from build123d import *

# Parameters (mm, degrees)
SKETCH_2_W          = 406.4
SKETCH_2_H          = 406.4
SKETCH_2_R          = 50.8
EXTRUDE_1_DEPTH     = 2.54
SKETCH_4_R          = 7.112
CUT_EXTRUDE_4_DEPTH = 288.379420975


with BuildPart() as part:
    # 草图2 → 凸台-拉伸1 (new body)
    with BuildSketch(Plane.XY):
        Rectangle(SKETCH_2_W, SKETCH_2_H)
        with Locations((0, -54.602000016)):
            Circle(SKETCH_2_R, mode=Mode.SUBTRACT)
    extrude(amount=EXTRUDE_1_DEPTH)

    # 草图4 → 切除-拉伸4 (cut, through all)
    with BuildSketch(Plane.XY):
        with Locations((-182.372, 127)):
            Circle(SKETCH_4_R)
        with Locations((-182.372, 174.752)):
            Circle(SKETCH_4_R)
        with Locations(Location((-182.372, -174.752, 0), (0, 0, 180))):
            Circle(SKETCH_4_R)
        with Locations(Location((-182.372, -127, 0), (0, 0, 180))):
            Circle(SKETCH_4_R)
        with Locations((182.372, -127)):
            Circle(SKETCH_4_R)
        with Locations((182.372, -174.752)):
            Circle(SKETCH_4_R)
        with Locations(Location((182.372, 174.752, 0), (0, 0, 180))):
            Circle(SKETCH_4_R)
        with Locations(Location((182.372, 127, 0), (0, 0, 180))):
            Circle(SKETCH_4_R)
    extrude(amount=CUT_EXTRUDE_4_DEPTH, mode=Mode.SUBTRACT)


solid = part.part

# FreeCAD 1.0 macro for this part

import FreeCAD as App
import Part
import Sketcher
Q = App.Units.Quantity

doc = App.newDocument("Part")
body = doc.addObject("PartDesign::Body", "Body")

# Sketch on XY plane
sketch1 = doc.addObject("Sketcher::SketchObject", "Sketch")
body.addObject(sketch1)
sketch1.AttachmentSupport = (doc.XY_Plane, [""])
sketch1.MapMode = "FlatFace"
sketch1.addGeometry([
    Part.LineSegment(App.Vector(-203, 203, 0), App.Vector(-203, -203, 0)),  # 0
    Part.LineSegment(App.Vector(-203, -203, 0), App.Vector(203, -203, 0)),  # 1
    Part.LineSegment(App.Vector(203, -203, 0), App.Vector(203, 203, 0)),  # 2
    Part.LineSegment(App.Vector(203, 203, 0), App.Vector(-203, 203, 0)),  # 3
    Part.Circle(App.Vector(0, -55, 0), App.Vector(0, 0, 1), 51),  # 4
], False)
sketch1.addConstraint([
    Sketcher.Constraint("Coincident", 0, 2, 1, 1),
    Sketcher.Constraint("Coincident", 1, 2, 2, 1),
    Sketcher.Constraint("Coincident", 2, 2, 3, 1),
    Sketcher.Constraint("Coincident", 3, 2, 0, 1),
    Sketcher.Constraint("Vertical", 0),
    Sketcher.Constraint("Horizontal", 1),
    Sketcher.Constraint("Vertical", 2),
    Sketcher.Constraint("Horizontal", 3),
    Sketcher.Constraint("Symmetric", 0, 2, 2, 2, -1, 1),
    Sketcher.Constraint("PointOnObject", 4, 3, -2),
    Sketcher.Constraint("Equal", 3, 0),
    Sketcher.Constraint("Diameter", 4, Q("4 in")),
    Sketcher.Constraint("DistanceX", 1, 1, 1, 2, Q("16 in")),
    Sketcher.Constraint("DistanceY", 4, 3, -1, 1, 54.602),
])
pad1 = doc.addObject("PartDesign::Pad", "Pad")
body.addObject(pad1)
pad1.Profile = sketch1
pad1.Length = Q("0.1 in")

# Sketch on XY plane
sketch2 = doc.addObject("Sketcher::SketchObject", "Sketch001")
body.addObject(sketch2)
sketch2.AttachmentSupport = (doc.XY_Plane, [""])
sketch2.MapMode = "FlatFace"
sketch2.addGeometry([
    Part.Circle(App.Vector(-182, 127, 0), App.Vector(0, 0, 1), 7),  # 0
    Part.Circle(App.Vector(-182, 175, 0), App.Vector(0, 0, 1), 7),  # 1
    Part.Circle(App.Vector(-182, -175, 0), App.Vector(0, 0, 1), 7),  # 2
    Part.Circle(App.Vector(-182, -127, 0), App.Vector(0, 0, 1), 7),  # 3
    Part.Circle(App.Vector(182, -127, 0), App.Vector(0, 0, 1), 7),  # 4
    Part.Circle(App.Vector(182, -175, 0), App.Vector(0, 0, 1), 7),  # 5
    Part.Circle(App.Vector(182, 175, 0), App.Vector(0, 0, 1), 7),  # 6
    Part.Circle(App.Vector(182, 127, 0), App.Vector(0, 0, 1), 7),  # 7
], False)
sketch2.addConstraint([
    Sketcher.Constraint("Equal", 0, 1),
    Sketcher.Constraint("Equal", 1, 2),
    Sketcher.Constraint("Equal", 2, 3),
    Sketcher.Constraint("Equal", 3, 4),
    Sketcher.Constraint("Equal", 4, 5),
    Sketcher.Constraint("Equal", 5, 6),
    Sketcher.Constraint("Equal", 6, 7),
    Sketcher.Constraint("Symmetric", 0, 3, 4, 3, -1, 1),
    Sketcher.Constraint("Symmetric", 1, 3, 5, 3, -1, 1),
    Sketcher.Constraint("Symmetric", 2, 3, 6, 3, -1, 1),
    Sketcher.Constraint("Symmetric", 3, 3, 7, 3, -1, 1),
    Sketcher.Constraint("Symmetric", 3, 3, 4, 3, -2),
    Sketcher.Constraint("Symmetric", 2, 3, 5, 3, -2),
    Sketcher.Constraint("Vertical", 0, 3, 1, 3),
    Sketcher.Constraint("Diameter", 0, Q("0.56 in")),
    Sketcher.Constraint("DistanceY", -1, 1, 0, 3, Q("5 in")),
    Sketcher.Constraint("DistanceX", 0, 3, -1, 1, Q("7.18 in")),
    Sketcher.Constraint("DistanceY", -1, 1, 1, 3, Q("6.88 in")),
])
pocket1 = doc.addObject("PartDesign::Pocket", "Pocket")
body.addObject(pocket1)
pocket1.Profile = sketch2
pocket1.Type = "ThroughAll"
pocket1.Reversed = True

doc.recompute()
